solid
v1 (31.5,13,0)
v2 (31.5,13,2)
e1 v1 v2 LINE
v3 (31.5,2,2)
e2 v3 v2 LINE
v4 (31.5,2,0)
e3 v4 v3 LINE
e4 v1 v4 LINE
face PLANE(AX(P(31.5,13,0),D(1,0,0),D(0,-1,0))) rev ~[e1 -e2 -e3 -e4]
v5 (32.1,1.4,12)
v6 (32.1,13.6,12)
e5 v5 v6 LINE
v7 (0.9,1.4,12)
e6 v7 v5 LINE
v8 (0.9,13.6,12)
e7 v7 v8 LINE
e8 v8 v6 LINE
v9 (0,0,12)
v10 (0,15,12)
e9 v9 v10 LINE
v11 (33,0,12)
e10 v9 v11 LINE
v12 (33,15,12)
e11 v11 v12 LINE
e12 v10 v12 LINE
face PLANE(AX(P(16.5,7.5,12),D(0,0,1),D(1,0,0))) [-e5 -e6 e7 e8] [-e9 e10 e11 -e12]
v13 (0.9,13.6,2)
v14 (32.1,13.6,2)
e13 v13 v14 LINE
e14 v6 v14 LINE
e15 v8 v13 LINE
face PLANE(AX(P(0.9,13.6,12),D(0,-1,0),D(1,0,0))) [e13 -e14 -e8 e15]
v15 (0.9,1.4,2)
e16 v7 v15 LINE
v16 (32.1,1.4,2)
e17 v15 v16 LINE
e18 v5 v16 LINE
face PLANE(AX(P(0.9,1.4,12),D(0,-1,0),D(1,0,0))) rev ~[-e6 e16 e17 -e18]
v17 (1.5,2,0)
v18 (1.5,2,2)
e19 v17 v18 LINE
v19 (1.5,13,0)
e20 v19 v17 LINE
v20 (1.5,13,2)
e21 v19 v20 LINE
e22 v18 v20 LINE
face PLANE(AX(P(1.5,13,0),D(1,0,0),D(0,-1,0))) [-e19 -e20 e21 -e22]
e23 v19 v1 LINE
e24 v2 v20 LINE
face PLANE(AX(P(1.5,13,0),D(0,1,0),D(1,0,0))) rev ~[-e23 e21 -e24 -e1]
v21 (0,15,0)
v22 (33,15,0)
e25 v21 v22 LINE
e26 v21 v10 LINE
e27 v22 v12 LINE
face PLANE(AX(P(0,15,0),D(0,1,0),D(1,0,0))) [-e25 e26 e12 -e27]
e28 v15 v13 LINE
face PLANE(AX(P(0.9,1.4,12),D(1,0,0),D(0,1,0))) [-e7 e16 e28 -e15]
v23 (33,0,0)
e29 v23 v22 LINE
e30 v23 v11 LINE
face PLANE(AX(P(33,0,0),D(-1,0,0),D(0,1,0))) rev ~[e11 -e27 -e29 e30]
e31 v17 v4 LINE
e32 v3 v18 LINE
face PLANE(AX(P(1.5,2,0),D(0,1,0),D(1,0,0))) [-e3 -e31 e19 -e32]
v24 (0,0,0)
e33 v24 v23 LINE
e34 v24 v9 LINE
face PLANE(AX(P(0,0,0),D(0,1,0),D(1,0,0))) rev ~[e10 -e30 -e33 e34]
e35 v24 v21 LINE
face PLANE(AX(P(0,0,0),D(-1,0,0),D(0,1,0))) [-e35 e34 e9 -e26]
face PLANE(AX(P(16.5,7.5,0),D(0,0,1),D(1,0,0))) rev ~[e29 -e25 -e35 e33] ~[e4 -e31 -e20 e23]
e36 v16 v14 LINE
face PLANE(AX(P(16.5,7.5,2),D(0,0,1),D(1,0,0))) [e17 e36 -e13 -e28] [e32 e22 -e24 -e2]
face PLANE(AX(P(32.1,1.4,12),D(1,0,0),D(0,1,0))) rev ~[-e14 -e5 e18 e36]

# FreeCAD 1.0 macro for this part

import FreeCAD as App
import Part
import Sketcher
Q = App.Units.Quantity


def add_polygon(sketch, points):
    """Adds a closed chain of lines whose ends are joined by coincident constraints."""
    first, n = sketch.GeometryCount, len(points)
    for a, b in zip(points, points[1:] + points[:1]):
        sketch.addGeometry(Part.LineSegment(App.Vector(*a, 0), App.Vector(*b, 0)), False)
    for i in range(n):
        sketch.addConstraint(Sketcher.Constraint("Coincident", first + i, 2, first + (i + 1) % n, 1))

doc = App.newDocument("Part")
body = doc.addObject("PartDesign::Body", "Body")

# Sketch on XY plane
sketch1 = body.newObject("Sketcher::SketchObject", "Sketch")
sketch1.AttachmentSupport = (doc.getObject("XY_Plane"), [""])
sketch1.MapMode = "FlatFace"
add_polygon(sketch1, [(0, 15), (0, 0), (33, 0), (33, 15)])  # lines 0-3
sketch1.addConstraint([
    Sketcher.Constraint("Vertical", 0),
    Sketcher.Constraint("Horizontal", 1),
    Sketcher.Constraint("Vertical", 2),
    Sketcher.Constraint("Horizontal", 3),
    Sketcher.Constraint("Coincident", 0, 2, -1, 1),
    Sketcher.Constraint("DistanceX", 1, 1, 1, 2, Q("33 mm")),
    Sketcher.Constraint("DistanceY", 0, 2, 0, 1, Q("15 mm")),
])
pad1 = body.newObject("PartDesign::Pad", "Pad")
pad1.Profile = sketch1
pad1.Length = 12

# Sketch on XY plane
sketch2 = body.newObject("Sketcher::SketchObject", "Sketch001")
sketch2.AttachmentSupport = (doc.getObject("XY_Plane"), [""])
sketch2.MapMode = "FlatFace"
sketch2.AttachmentOffset = App.Placement(App.Vector(0, 0, 12), App.Rotation())
add_polygon(sketch2, [(1, 14), (1, 1), (32, 1), (32, 14)])  # lines 0-3
sketch2.addConstraint([
    Sketcher.Constraint("Vertical", 0),
    Sketcher.Constraint("Horizontal", 1),
    Sketcher.Constraint("Vertical", 2),
    Sketcher.Constraint("Horizontal", 3),
    Sketcher.Constraint("DistanceX", 1, 1, 1, 2, Q("31.2 mm")),
    Sketcher.Constraint("DistanceY", 0, 2, 0, 1, Q("12.2 mm")),
    Sketcher.Constraint("DistanceX", -1, 1, 0, 2, Q("0.9 mm")),
    Sketcher.Constraint("DistanceY", -1, 1, 0, 2, Q("1.4 mm")),
])
pocket1 = body.newObject("PartDesign::Pocket", "Pocket")
pocket1.Profile = sketch2
pocket1.Length = 10

# Sketch on XY plane
sketch3 = body.newObject("Sketcher::SketchObject", "Sketch002")
sketch3.AttachmentSupport = (doc.getObject("XY_Plane"), [""])
sketch3.MapMode = "FlatFace"
add_polygon(sketch3, [(2, 2), (2, 13), (32, 13), (32, 2)])  # lines 0-3
sketch3.addConstraint([
    Sketcher.Constraint("Vertical", 0),
    Sketcher.Constraint("Horizontal", 1),
    Sketcher.Constraint("Vertical", 2),
    Sketcher.Constraint("Horizontal", 3),
    Sketcher.Constraint("DistanceX", 1, 1, 1, 2, Q("30 mm")),
    Sketcher.Constraint("DistanceY", 0, 1, 0, 2, Q("11 mm")),
    Sketcher.Constraint("DistanceY", -1, 1, 0, 2, Q("13 mm")),
    Sketcher.Constraint("DistanceX", -1, 1, 0, 2, Q("1.5 mm")),
])
pocket2 = body.newObject("PartDesign::Pocket", "Pocket001")
pocket2.Profile = sketch3
pocket2.Type = "ThroughAll"
pocket2.Reversed = True

doc.recompute()
